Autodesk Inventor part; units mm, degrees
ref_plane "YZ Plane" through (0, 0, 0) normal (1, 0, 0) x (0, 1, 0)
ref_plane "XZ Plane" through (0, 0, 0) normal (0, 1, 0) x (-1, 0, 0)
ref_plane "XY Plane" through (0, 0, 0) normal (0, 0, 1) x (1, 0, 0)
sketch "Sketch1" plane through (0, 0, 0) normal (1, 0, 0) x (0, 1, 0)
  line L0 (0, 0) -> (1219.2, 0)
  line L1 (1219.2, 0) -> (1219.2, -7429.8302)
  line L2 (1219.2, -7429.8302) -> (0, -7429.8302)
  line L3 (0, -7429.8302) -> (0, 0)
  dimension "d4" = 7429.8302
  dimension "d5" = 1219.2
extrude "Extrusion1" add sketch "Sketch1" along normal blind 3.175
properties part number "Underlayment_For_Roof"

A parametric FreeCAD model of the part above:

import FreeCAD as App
import Part
import Sketcher

V = App.Vector
Q = App.Units.Quantity


def add_polygon(sketch, points):
    """Adds a closed chain of lines whose ends are joined by coincident constraints."""
    first, n = sketch.GeometryCount, len(points)
    for a, b in zip(points, points[1:] + points[:1]):
        sketch.addGeometry(Part.LineSegment(App.Vector(*a, 0), App.Vector(*b, 0)), False)
    for i in range(n):
        sketch.addConstraint(Sketcher.Constraint("Coincident", first + i, 2, first + (i + 1) % n, 1))

doc = App.newDocument("Part")
body = doc.addObject("PartDesign::Body", "Body")

sketch1 = doc.addObject("Sketcher::SketchObject", "Sketch")
body.addObject(sketch1)
sketch1.AttachmentSupport = (doc.YZ_Plane, [""])
sketch1.MapMode = "FlatFace"
add_polygon(sketch1, [(1219, 0), (0, 0), (0, -7430), (1219, -7430)])
sketch1.addConstraint([
    Sketcher.Constraint("Horizontal", 0),
    Sketcher.Constraint("Vertical", 1),
    Sketcher.Constraint("Horizontal", 2),
    Sketcher.Constraint("Vertical", 3),
    Sketcher.Constraint("Coincident", 0, 2, -1, 1),
    Sketcher.Constraint("DistanceX", 0, 2, 0, 1, Q("48 in")),
    Sketcher.Constraint("DistanceY", 1, 2, 1, 1, Q("292.513 in")),
])
pad1 = doc.addObject("PartDesign::Pad", "Pad")
body.addObject(pad1)
pad1.Profile = sketch1
pad1.Length = Q("0.125 in")

doc.recompute()
